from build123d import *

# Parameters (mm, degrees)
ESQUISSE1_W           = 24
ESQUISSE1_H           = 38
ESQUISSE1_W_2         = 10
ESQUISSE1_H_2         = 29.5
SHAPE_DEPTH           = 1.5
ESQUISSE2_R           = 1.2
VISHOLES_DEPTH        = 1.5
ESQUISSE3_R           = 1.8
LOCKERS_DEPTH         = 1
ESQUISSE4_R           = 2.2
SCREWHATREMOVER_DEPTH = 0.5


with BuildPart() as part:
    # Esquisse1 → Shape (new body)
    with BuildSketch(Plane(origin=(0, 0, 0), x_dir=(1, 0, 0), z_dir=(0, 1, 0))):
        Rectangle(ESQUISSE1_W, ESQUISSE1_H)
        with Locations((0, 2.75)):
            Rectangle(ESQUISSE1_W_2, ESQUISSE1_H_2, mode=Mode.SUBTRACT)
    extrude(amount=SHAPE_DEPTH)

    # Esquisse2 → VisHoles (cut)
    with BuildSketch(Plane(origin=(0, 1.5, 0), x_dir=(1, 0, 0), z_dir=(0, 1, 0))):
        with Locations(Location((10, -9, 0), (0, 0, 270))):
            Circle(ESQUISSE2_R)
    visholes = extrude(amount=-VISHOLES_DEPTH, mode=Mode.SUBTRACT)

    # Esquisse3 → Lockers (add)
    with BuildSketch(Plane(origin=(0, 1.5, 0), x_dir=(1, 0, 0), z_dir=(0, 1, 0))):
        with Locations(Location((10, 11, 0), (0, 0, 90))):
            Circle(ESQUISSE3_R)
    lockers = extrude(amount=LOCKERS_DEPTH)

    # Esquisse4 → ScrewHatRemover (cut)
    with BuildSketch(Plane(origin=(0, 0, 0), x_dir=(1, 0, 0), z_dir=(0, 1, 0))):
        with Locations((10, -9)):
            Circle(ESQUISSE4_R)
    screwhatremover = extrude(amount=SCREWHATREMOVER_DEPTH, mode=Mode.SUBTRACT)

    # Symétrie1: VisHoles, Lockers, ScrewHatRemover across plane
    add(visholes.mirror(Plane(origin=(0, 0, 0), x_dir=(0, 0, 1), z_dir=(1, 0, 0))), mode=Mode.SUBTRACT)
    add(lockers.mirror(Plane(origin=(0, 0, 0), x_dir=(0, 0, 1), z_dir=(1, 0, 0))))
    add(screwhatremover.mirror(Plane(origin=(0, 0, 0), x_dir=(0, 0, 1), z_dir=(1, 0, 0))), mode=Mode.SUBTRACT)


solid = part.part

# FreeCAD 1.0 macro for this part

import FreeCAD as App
import Part
import Sketcher
Q = App.Units.Quantity


def add_polygon(sketch, points):
    """Adds a closed chain of lines whose ends are joined by coincident constraints."""
    first, n = sketch.GeometryCount, len(points)
    for a, b in zip(points, points[1:] + points[:1]):
        sketch.addGeometry(Part.LineSegment(App.Vector(*a, 0), App.Vector(*b, 0)), False)
    for i in range(n):
        sketch.addConstraint(Sketcher.Constraint("Coincident", first + i, 2, first + (i + 1) % n, 1))

doc = App.newDocument("Part")
params = doc.addObject("Spreadsheet::Sheet", "Params")
for row, (alias, value) in enumerate([
    ("sketch1_width", "24 mm"),
    ("sketch1_width2", "10 mm"),
    ("sketch1_height", "38 mm"),
    ("sketch1_height2", "29.5 mm"),
    ("pad1_length", "1.5 mm"),
    ("sketch2_diameter", "2.4 mm"),
    ("pocket1_length", "1.5 mm"),
    ("sketch3_diameter", "3.6 mm"),
    ("pad2_length", "1 mm"),
    ("sketch4_diameter", "4.4 mm"),
    ("pocket2_length", "0.5 mm"),
], start=1):
    params.set(f"A{row}", alias)
    params.set(f"B{row}", "=" + value)
    params.setAlias(f"B{row}", alias)

body = doc.addObject("PartDesign::Body", "Body")

sketch1 = body.newObject("Sketcher::SketchObject", "Sketch")
sketch1.AttachmentSupport = (doc.getObject("XZ_Plane"), [""])
sketch1.MapMode = "FlatFace"
add_polygon(sketch1, [(-12, -19), (-12, 19), (12, 19), (12, -19)])
add_polygon(sketch1, [(5, 12), (-5, 12), (-5, -17.5), (5, -17.5)])
sketch1.addConstraint([
    Sketcher.Constraint("Vertical", 0),
    Sketcher.Constraint("Horizontal", 1),
    Sketcher.Constraint("Vertical", 2),
    Sketcher.Constraint("Horizontal", 3),
    Sketcher.Constraint("Horizontal", 4),
    Sketcher.Constraint("Vertical", 5),
    Sketcher.Constraint("Horizontal", 6),
    Sketcher.Constraint("Vertical", 7),
    Sketcher.Constraint("Symmetric", 0, 2, 2, 2, -1, 1),
    Sketcher.Constraint("DistanceX", 1, 1, 1, 2, Q("24 mm")),
    Sketcher.Constraint("DistanceX", 4, 2, 4, 1, Q("10 mm")),
    Sketcher.Constraint("DistanceY", 0, 1, 0, 2, Q("38 mm")),
    Sketcher.Constraint("DistanceY", 5, 2, 5, 1, Q("29.5 mm")),
    Sketcher.Constraint("DistanceX", 4, 2, -1, 1, Q("5 mm")),
    Sketcher.Constraint("DistanceY", -1, 1, 4, 2, Q("12 mm")),
])
sketch1.setExpression("Constraints[17]", "Params.sketch1_width")
sketch1.setExpression("Constraints[18]", "Params.sketch1_width2")
sketch1.setExpression("Constraints[19]", "Params.sketch1_height")
sketch1.setExpression("Constraints[20]", "Params.sketch1_height2")
pad1 = body.newObject("PartDesign::Pad", "Pad")
pad1.Profile = sketch1
pad1.setExpression("Length", "Params.pad1_length")
pad1.Reversed = True

sketch2 = body.newObject("Sketcher::SketchObject", "Sketch001")
sketch2.AttachmentSupport = (doc.getObject("XZ_Plane"), [""])
sketch2.MapMode = "FlatFace"
sketch2.AttachmentOffset = App.Placement(App.Vector(0, 0, -1.5), App.Rotation())
sketch2.addGeometry(Part.Circle(App.Vector(10, 9, 0), App.Vector(0, 0, 1), 1.2), False)
sketch2.addConstraint([
    Sketcher.Constraint("Diameter", 0, Q("2.4 mm")),
    Sketcher.Constraint("DistanceX", -1, 1, 0, 3, Q("10 mm")),
    Sketcher.Constraint("DistanceY", -1, 1, 0, 3, Q("9 mm")),
])
sketch2.setExpression("Constraints[0]", "Params.sketch2_diameter")
pocket1 = body.newObject("PartDesign::Pocket", "Pocket")
pocket1.Profile = sketch2
pocket1.setExpression("Length", "Params.pocket1_length")
pocket1.Reversed = True

sketch3 = body.newObject("Sketcher::SketchObject", "Sketch002")
sketch3.AttachmentSupport = (doc.getObject("XZ_Plane"), [""])
sketch3.MapMode = "FlatFace"
sketch3.AttachmentOffset = App.Placement(App.Vector(0, 0, -1.5), App.Rotation())
sketch3.addGeometry(Part.Circle(App.Vector(10, -11, 0), App.Vector(0, 0, 1), 1.8), False)
sketch3.addConstraint([
    Sketcher.Constraint("Diameter", 0, Q("3.6 mm")),
    Sketcher.Constraint("DistanceX", -1, 1, 0, 3, Q("10 mm")),
    Sketcher.Constraint("DistanceY", 0, 3, -1, 1, Q("11 mm")),
])
sketch3.setExpression("Constraints[0]", "Params.sketch3_diameter")
pad2 = body.newObject("PartDesign::Pad", "Pad001")
pad2.Profile = sketch3
pad2.setExpression("Length", "Params.pad2_length")
pad2.Reversed = True

sketch4 = body.newObject("Sketcher::SketchObject", "Sketch003")
sketch4.AttachmentSupport = (doc.getObject("XZ_Plane"), [""])
sketch4.MapMode = "FlatFace"
sketch4.addGeometry(Part.Circle(App.Vector(10, 9, 0), App.Vector(0, 0, 1), 2.2), False)
sketch4.addConstraint([
    Sketcher.Constraint("Diameter", 0, Q("4.4 mm")),
    Sketcher.Constraint("DistanceX", -1, 1, 0, 3, Q("10 mm")),
    Sketcher.Constraint("DistanceY", -1, 1, 0, 3, Q("9 mm")),
])
sketch4.setExpression("Constraints[0]", "Params.sketch4_diameter")
pocket2 = body.newObject("PartDesign::Pocket", "Pocket001")
pocket2.Profile = sketch4
pocket2.setExpression("Length", "Params.pocket2_length")
doc.recompute()

mirrored = body.newObject("PartDesign::Mirrored", "Mirrored")
mirrored.Originals = [pocket1, pad2, pocket2]
mirrored.MirrorPlane = (doc.getObject("YZ_Plane"), [""])
body.Tip = mirrored

doc.recompute()
